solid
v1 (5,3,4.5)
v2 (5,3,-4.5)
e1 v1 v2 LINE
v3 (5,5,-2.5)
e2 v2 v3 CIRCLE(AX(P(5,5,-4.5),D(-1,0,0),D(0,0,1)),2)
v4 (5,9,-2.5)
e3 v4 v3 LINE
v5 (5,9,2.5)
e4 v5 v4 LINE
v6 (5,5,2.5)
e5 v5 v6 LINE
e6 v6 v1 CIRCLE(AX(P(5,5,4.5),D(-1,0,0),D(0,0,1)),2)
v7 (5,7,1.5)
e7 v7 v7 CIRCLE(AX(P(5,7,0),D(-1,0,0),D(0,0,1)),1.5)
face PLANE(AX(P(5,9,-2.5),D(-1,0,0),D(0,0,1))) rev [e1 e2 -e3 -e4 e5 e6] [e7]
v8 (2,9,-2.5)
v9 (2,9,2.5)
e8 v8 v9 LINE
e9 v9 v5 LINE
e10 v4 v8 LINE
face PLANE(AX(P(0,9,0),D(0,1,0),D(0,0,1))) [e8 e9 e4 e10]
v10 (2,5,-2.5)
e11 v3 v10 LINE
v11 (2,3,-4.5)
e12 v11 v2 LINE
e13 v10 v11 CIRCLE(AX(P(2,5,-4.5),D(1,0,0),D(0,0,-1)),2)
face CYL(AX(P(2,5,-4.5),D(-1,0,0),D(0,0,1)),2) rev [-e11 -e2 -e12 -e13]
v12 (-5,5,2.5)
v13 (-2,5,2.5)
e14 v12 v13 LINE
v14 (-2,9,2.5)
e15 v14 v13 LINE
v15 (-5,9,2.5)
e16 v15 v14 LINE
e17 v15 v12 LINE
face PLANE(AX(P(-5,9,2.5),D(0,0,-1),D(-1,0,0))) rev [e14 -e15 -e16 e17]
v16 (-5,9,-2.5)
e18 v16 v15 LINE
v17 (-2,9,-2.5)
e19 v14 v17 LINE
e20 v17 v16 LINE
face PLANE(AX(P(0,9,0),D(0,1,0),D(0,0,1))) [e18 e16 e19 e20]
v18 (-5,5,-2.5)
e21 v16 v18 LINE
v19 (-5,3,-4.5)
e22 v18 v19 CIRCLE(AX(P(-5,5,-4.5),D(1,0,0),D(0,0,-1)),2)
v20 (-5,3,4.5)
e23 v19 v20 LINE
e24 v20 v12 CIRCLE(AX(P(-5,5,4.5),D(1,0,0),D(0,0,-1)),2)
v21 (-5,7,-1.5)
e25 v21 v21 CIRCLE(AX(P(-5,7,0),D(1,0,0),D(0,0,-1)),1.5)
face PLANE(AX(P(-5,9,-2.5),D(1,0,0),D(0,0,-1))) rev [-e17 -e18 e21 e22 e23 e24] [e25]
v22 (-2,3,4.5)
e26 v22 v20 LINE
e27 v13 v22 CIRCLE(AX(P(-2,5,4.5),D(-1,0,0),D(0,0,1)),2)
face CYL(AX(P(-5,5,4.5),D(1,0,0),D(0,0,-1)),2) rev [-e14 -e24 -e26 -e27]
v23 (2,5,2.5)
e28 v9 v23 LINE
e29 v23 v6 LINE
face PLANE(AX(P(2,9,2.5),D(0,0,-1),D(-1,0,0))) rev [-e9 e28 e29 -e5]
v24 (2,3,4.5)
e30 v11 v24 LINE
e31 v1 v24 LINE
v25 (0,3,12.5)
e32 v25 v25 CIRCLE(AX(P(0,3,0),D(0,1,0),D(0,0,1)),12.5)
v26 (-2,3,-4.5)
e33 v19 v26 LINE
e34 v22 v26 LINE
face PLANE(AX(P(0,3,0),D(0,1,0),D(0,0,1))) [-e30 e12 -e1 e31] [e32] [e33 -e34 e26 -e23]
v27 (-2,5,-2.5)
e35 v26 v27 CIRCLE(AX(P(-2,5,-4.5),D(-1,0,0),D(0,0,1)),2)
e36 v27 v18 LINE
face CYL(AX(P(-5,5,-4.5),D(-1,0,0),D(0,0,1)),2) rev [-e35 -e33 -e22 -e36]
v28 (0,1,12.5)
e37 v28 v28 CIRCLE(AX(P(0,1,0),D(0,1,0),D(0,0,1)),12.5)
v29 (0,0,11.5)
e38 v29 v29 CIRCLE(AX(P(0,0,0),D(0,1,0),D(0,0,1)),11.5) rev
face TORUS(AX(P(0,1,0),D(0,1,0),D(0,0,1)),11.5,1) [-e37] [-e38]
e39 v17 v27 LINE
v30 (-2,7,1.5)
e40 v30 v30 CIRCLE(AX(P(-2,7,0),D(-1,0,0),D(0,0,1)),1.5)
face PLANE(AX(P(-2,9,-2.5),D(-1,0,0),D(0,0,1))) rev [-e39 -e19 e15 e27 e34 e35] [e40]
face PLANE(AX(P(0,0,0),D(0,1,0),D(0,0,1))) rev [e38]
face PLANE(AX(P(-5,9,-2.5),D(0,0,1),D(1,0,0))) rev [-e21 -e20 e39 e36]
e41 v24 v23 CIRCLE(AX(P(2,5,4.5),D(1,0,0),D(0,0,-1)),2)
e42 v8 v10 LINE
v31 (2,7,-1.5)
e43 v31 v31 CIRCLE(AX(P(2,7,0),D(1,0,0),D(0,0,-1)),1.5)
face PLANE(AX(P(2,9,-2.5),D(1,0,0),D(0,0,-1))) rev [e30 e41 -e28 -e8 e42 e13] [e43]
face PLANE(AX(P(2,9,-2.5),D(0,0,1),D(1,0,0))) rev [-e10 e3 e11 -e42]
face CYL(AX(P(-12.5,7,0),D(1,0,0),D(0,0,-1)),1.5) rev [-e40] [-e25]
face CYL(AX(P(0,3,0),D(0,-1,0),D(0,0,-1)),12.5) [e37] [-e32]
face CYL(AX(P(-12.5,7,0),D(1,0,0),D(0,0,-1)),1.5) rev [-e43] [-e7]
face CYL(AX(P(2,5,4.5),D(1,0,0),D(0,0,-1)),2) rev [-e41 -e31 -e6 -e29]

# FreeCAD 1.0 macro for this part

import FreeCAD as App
import Part
import Sketcher

V = App.Vector


def edges_at(feature, points):
    """Names of the edges that pass closest to the given points."""
    edges = feature.Shape.Edges
    near = lambda p: min(range(len(edges)), key=lambda i: edges[i].distToShape(Part.Vertex(*p))[0])
    return sorted({f"Edge{near(p) + 1}" for p in points})

doc = App.newDocument("Part")
body = doc.addObject("PartDesign::Body", "Body")

sketch1 = doc.addObject("Sketcher::SketchObject", "Sketch")
body.addObject(sketch1)
sketch1.AttachmentSupport = (doc.XZ_Plane, [""])
sketch1.MapMode = "FlatFace"
sketch1.addGeometry(Part.Circle(V(0, 0, 0), V(0, 0, 1), 12), False)
sketch1.addConstraint(Sketcher.Constraint("Coincident", 0, 3, -1, 1))
sketch1.addConstraint(Sketcher.Constraint("Diameter", 0, 25.0))
pad1 = doc.addObject("PartDesign::Pad", "Pad")
body.addObject(pad1)
pad1.Profile = sketch1
pad1.Length = 3
pad1.Reversed = True

sketch2 = doc.addObject("Sketcher::SketchObject", "Sketch001")
body.addObject(sketch2)
sketch2.AttachmentSupport = (doc.XZ_Plane, [""])
sketch2.MapMode = "FlatFace"
sketch2.AttachmentOffset = App.Placement(V(0, 0, -3), App.Rotation())
sketch2.addGeometry(Part.LineSegment(V(-5, -2.5, 0), V(-5, 2.5, 0)), False)
sketch2.addGeometry(Part.LineSegment(V(-5, 2.5, 0), V(-2, 2.5, 0)), False)
sketch2.addGeometry(Part.LineSegment(V(-2, 2.5, 0), V(-2, -2.5, 0)), False)
sketch2.addGeometry(Part.LineSegment(V(-2, -2.5, 0), V(-5, -2.5, 0)), False)
sketch2.addGeometry(Part.LineSegment(V(2, -2.5, 0), V(2, 2.5, 0)), False)
sketch2.addGeometry(Part.LineSegment(V(2, 2.5, 0), V(5, 2.5, 0)), False)
sketch2.addGeometry(Part.LineSegment(V(5, 2.5, 0), V(5, -2.5, 0)), False)
sketch2.addGeometry(Part.LineSegment(V(5, -2.5, 0), V(2, -2.5, 0)), False)
sketch2.addConstraint(Sketcher.Constraint("Coincident", 0, 2, 1, 1))
sketch2.addConstraint(Sketcher.Constraint("Coincident", 1, 2, 2, 1))
sketch2.addConstraint(Sketcher.Constraint("Coincident", 2, 2, 3, 1))
sketch2.addConstraint(Sketcher.Constraint("Coincident", 3, 2, 0, 1))
sketch2.addConstraint(Sketcher.Constraint("Coincident", 4, 2, 5, 1))
sketch2.addConstraint(Sketcher.Constraint("Coincident", 5, 2, 6, 1))
sketch2.addConstraint(Sketcher.Constraint("Coincident", 6, 2, 7, 1))
sketch2.addConstraint(Sketcher.Constraint("Coincident", 7, 2, 4, 1))
sketch2.addConstraint(Sketcher.Constraint("Vertical", 0))
sketch2.addConstraint(Sketcher.Constraint("Horizontal", 1))
sketch2.addConstraint(Sketcher.Constraint("Vertical", 2))
sketch2.addConstraint(Sketcher.Constraint("Horizontal", 3))
sketch2.addConstraint(Sketcher.Constraint("Vertical", 4))
sketch2.addConstraint(Sketcher.Constraint("Horizontal", 5))
sketch2.addConstraint(Sketcher.Constraint("Vertical", 6))
sketch2.addConstraint(Sketcher.Constraint("Horizontal", 7))
sketch2.addConstraint(Sketcher.Constraint("Symmetric", 2, 2, 4, 2, -1, 1))
sketch2.addConstraint(Sketcher.Constraint("Symmetric", 0, 2, 6, 2, -1, 1))
sketch2.addConstraint(Sketcher.Constraint("Horizontal", 1, 2, 4, 2))
sketch2.addConstraint(Sketcher.Constraint("DistanceX", 1, 1, 1, 2, 3.0))
sketch2.addConstraint(Sketcher.Constraint("DistanceY", 0, 1, 0, 2, 5.0))
sketch2.addConstraint(Sketcher.Constraint("DistanceX", 0, 2, -1, 1, 5.0))
pad2 = doc.addObject("PartDesign::Pad", "Pad001")
body.addObject(pad2)
pad2.Profile = sketch2
pad2.Length = 6
pad2.Reversed = True

sketch3 = doc.addObject("Sketcher::SketchObject", "Sketch002")
body.addObject(sketch3)
sketch3.AttachmentSupport = (doc.YZ_Plane, [""])
sketch3.MapMode = "FlatFace"
sketch3.AttachmentOffset = App.Placement(V(0, 0, 5), App.Rotation())
sketch3.addGeometry(Part.Circle(V(7, 0, 0), V(0, 0, 1), 1.5), False)
sketch3.addConstraint(Sketcher.Constraint("PointOnObject", 0, 3, -1))
sketch3.addConstraint(Sketcher.Constraint("Diameter", 0, 3.0))
sketch3.addConstraint(Sketcher.Constraint("DistanceX", -1, 1, 0, 3, 7.0))
pocket1 = doc.addObject("PartDesign::Pocket", "Pocket")
body.addObject(pocket1)
pocket1.Profile = sketch3
pocket1.Type = "ThroughAll"
pocket1.Midplane = True
doc.recompute()

fillet = doc.addObject("PartDesign::Fillet", "Fillet")
body.addObject(fillet)
fillet.Base = (pocket1, edges_at(pocket1, [
    (3.5, 3, -2.5),
    (3.5, 3, 2.5),
    (-3.5, 3, -2.5),
    (-3.5, 3, 2.5),
]))
fillet.Radius = 2
doc.recompute()

fillet2 = doc.addObject("PartDesign::Fillet", "Fillet001")
body.addObject(fillet2)
fillet2.Base = (fillet, edges_at(fillet, [(0, 0, -12.5)]))
fillet2.Radius = 1

doc.recompute()
